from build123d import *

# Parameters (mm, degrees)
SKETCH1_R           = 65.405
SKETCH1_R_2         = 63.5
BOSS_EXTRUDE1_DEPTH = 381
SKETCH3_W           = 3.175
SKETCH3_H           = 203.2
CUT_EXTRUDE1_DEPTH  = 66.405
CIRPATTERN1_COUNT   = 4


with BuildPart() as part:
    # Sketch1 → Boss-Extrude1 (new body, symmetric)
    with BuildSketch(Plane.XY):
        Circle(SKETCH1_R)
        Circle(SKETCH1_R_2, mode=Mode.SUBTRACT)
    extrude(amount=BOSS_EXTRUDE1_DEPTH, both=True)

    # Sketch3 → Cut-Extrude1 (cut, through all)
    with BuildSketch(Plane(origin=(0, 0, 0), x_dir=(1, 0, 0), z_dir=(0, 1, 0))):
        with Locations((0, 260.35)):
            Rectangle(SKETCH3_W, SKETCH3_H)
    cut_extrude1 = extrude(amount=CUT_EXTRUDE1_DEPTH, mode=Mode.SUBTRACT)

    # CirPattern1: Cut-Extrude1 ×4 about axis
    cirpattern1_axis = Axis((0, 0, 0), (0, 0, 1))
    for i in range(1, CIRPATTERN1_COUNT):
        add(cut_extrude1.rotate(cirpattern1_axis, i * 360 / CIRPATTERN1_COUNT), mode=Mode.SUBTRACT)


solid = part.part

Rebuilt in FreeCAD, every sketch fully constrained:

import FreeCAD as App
import Part
import Sketcher
Q = App.Units.Quantity


def add_polygon(sketch, points):
    """Adds a closed chain of lines whose ends are joined by coincident constraints."""
    first, n = sketch.GeometryCount, len(points)
    for a, b in zip(points, points[1:] + points[:1]):
        sketch.addGeometry(Part.LineSegment(App.Vector(*a, 0), App.Vector(*b, 0)), False)
    for i in range(n):
        sketch.addConstraint(Sketcher.Constraint("Coincident", first + i, 2, first + (i + 1) % n, 1))

doc = App.newDocument("Part")
body = doc.addObject("PartDesign::Body", "Body")

# Sketch on XY plane
sketch1 = body.newObject("Sketcher::SketchObject", "Sketch")
sketch1.AttachmentSupport = (doc.getObject("XY_Plane"), [""])
sketch1.MapMode = "FlatFace"
sketch1.addGeometry([
    Part.Circle(App.Vector(0, 0, 0), App.Vector(0, 0, 1), 65.405),
    Part.Circle(App.Vector(0, 0, 0), App.Vector(0, 0, 1), 63.5),
], False)
sketch1.addConstraint([
    Sketcher.Constraint("Coincident", 0, 3, -1, 1),
    Sketcher.Constraint("Coincident", 1, 3, -1, 1),
    Sketcher.Constraint("Diameter", 1, Q("5 in")),
    Sketcher.Constraint("Diameter", 0, Q("5.15 in")),
])
pad1 = body.newObject("PartDesign::Pad", "Pad")
pad1.Profile = sketch1
pad1.Length = Q("30 in")
pad1.Midplane = True

# Sketch on XZ plane
sketch2 = body.newObject("Sketcher::SketchObject", "Sketch001")
sketch2.AttachmentSupport = (doc.getObject("XZ_Plane"), [""])
sketch2.MapMode = "FlatFace"
add_polygon(sketch2, [(-1.5875, -361.95), (-1.5875, -158.75), (1.5875, -158.75), (1.5875, -361.95)])  # lines 0-3
sketch2.addConstraint([
    Sketcher.Constraint("Vertical", 0),
    Sketcher.Constraint("Horizontal", 1),
    Sketcher.Constraint("Vertical", 2),
    Sketcher.Constraint("Horizontal", 3),
    Sketcher.Constraint("DistanceY", 0, 1, 0, 2, Q("8 in")),
    Sketcher.Constraint("DistanceX", 1, 1, 1, 2, Q("0.125 in")),
    Sketcher.Constraint("DistanceY", 0, 2, -1, 1, Q("6.25 in")),
    Sketcher.Constraint("DistanceX", 0, 2, -1, 1, Q("0.0625 in")),
])
pocket1 = body.newObject("PartDesign::Pocket", "Pocket")
pocket1.Profile = sketch2
pocket1.Type = "ThroughAll"
doc.recompute()

polarpattern = body.newObject("PartDesign::PolarPattern", "PolarPattern")
polarpattern.Originals = [pocket1]
polarpattern.Axis = (doc.getObject("Z_Axis"), [""])
polarpattern.Angle = 360
polarpattern.Occurrences = 4
body.Tip = polarpattern

doc.recompute()
